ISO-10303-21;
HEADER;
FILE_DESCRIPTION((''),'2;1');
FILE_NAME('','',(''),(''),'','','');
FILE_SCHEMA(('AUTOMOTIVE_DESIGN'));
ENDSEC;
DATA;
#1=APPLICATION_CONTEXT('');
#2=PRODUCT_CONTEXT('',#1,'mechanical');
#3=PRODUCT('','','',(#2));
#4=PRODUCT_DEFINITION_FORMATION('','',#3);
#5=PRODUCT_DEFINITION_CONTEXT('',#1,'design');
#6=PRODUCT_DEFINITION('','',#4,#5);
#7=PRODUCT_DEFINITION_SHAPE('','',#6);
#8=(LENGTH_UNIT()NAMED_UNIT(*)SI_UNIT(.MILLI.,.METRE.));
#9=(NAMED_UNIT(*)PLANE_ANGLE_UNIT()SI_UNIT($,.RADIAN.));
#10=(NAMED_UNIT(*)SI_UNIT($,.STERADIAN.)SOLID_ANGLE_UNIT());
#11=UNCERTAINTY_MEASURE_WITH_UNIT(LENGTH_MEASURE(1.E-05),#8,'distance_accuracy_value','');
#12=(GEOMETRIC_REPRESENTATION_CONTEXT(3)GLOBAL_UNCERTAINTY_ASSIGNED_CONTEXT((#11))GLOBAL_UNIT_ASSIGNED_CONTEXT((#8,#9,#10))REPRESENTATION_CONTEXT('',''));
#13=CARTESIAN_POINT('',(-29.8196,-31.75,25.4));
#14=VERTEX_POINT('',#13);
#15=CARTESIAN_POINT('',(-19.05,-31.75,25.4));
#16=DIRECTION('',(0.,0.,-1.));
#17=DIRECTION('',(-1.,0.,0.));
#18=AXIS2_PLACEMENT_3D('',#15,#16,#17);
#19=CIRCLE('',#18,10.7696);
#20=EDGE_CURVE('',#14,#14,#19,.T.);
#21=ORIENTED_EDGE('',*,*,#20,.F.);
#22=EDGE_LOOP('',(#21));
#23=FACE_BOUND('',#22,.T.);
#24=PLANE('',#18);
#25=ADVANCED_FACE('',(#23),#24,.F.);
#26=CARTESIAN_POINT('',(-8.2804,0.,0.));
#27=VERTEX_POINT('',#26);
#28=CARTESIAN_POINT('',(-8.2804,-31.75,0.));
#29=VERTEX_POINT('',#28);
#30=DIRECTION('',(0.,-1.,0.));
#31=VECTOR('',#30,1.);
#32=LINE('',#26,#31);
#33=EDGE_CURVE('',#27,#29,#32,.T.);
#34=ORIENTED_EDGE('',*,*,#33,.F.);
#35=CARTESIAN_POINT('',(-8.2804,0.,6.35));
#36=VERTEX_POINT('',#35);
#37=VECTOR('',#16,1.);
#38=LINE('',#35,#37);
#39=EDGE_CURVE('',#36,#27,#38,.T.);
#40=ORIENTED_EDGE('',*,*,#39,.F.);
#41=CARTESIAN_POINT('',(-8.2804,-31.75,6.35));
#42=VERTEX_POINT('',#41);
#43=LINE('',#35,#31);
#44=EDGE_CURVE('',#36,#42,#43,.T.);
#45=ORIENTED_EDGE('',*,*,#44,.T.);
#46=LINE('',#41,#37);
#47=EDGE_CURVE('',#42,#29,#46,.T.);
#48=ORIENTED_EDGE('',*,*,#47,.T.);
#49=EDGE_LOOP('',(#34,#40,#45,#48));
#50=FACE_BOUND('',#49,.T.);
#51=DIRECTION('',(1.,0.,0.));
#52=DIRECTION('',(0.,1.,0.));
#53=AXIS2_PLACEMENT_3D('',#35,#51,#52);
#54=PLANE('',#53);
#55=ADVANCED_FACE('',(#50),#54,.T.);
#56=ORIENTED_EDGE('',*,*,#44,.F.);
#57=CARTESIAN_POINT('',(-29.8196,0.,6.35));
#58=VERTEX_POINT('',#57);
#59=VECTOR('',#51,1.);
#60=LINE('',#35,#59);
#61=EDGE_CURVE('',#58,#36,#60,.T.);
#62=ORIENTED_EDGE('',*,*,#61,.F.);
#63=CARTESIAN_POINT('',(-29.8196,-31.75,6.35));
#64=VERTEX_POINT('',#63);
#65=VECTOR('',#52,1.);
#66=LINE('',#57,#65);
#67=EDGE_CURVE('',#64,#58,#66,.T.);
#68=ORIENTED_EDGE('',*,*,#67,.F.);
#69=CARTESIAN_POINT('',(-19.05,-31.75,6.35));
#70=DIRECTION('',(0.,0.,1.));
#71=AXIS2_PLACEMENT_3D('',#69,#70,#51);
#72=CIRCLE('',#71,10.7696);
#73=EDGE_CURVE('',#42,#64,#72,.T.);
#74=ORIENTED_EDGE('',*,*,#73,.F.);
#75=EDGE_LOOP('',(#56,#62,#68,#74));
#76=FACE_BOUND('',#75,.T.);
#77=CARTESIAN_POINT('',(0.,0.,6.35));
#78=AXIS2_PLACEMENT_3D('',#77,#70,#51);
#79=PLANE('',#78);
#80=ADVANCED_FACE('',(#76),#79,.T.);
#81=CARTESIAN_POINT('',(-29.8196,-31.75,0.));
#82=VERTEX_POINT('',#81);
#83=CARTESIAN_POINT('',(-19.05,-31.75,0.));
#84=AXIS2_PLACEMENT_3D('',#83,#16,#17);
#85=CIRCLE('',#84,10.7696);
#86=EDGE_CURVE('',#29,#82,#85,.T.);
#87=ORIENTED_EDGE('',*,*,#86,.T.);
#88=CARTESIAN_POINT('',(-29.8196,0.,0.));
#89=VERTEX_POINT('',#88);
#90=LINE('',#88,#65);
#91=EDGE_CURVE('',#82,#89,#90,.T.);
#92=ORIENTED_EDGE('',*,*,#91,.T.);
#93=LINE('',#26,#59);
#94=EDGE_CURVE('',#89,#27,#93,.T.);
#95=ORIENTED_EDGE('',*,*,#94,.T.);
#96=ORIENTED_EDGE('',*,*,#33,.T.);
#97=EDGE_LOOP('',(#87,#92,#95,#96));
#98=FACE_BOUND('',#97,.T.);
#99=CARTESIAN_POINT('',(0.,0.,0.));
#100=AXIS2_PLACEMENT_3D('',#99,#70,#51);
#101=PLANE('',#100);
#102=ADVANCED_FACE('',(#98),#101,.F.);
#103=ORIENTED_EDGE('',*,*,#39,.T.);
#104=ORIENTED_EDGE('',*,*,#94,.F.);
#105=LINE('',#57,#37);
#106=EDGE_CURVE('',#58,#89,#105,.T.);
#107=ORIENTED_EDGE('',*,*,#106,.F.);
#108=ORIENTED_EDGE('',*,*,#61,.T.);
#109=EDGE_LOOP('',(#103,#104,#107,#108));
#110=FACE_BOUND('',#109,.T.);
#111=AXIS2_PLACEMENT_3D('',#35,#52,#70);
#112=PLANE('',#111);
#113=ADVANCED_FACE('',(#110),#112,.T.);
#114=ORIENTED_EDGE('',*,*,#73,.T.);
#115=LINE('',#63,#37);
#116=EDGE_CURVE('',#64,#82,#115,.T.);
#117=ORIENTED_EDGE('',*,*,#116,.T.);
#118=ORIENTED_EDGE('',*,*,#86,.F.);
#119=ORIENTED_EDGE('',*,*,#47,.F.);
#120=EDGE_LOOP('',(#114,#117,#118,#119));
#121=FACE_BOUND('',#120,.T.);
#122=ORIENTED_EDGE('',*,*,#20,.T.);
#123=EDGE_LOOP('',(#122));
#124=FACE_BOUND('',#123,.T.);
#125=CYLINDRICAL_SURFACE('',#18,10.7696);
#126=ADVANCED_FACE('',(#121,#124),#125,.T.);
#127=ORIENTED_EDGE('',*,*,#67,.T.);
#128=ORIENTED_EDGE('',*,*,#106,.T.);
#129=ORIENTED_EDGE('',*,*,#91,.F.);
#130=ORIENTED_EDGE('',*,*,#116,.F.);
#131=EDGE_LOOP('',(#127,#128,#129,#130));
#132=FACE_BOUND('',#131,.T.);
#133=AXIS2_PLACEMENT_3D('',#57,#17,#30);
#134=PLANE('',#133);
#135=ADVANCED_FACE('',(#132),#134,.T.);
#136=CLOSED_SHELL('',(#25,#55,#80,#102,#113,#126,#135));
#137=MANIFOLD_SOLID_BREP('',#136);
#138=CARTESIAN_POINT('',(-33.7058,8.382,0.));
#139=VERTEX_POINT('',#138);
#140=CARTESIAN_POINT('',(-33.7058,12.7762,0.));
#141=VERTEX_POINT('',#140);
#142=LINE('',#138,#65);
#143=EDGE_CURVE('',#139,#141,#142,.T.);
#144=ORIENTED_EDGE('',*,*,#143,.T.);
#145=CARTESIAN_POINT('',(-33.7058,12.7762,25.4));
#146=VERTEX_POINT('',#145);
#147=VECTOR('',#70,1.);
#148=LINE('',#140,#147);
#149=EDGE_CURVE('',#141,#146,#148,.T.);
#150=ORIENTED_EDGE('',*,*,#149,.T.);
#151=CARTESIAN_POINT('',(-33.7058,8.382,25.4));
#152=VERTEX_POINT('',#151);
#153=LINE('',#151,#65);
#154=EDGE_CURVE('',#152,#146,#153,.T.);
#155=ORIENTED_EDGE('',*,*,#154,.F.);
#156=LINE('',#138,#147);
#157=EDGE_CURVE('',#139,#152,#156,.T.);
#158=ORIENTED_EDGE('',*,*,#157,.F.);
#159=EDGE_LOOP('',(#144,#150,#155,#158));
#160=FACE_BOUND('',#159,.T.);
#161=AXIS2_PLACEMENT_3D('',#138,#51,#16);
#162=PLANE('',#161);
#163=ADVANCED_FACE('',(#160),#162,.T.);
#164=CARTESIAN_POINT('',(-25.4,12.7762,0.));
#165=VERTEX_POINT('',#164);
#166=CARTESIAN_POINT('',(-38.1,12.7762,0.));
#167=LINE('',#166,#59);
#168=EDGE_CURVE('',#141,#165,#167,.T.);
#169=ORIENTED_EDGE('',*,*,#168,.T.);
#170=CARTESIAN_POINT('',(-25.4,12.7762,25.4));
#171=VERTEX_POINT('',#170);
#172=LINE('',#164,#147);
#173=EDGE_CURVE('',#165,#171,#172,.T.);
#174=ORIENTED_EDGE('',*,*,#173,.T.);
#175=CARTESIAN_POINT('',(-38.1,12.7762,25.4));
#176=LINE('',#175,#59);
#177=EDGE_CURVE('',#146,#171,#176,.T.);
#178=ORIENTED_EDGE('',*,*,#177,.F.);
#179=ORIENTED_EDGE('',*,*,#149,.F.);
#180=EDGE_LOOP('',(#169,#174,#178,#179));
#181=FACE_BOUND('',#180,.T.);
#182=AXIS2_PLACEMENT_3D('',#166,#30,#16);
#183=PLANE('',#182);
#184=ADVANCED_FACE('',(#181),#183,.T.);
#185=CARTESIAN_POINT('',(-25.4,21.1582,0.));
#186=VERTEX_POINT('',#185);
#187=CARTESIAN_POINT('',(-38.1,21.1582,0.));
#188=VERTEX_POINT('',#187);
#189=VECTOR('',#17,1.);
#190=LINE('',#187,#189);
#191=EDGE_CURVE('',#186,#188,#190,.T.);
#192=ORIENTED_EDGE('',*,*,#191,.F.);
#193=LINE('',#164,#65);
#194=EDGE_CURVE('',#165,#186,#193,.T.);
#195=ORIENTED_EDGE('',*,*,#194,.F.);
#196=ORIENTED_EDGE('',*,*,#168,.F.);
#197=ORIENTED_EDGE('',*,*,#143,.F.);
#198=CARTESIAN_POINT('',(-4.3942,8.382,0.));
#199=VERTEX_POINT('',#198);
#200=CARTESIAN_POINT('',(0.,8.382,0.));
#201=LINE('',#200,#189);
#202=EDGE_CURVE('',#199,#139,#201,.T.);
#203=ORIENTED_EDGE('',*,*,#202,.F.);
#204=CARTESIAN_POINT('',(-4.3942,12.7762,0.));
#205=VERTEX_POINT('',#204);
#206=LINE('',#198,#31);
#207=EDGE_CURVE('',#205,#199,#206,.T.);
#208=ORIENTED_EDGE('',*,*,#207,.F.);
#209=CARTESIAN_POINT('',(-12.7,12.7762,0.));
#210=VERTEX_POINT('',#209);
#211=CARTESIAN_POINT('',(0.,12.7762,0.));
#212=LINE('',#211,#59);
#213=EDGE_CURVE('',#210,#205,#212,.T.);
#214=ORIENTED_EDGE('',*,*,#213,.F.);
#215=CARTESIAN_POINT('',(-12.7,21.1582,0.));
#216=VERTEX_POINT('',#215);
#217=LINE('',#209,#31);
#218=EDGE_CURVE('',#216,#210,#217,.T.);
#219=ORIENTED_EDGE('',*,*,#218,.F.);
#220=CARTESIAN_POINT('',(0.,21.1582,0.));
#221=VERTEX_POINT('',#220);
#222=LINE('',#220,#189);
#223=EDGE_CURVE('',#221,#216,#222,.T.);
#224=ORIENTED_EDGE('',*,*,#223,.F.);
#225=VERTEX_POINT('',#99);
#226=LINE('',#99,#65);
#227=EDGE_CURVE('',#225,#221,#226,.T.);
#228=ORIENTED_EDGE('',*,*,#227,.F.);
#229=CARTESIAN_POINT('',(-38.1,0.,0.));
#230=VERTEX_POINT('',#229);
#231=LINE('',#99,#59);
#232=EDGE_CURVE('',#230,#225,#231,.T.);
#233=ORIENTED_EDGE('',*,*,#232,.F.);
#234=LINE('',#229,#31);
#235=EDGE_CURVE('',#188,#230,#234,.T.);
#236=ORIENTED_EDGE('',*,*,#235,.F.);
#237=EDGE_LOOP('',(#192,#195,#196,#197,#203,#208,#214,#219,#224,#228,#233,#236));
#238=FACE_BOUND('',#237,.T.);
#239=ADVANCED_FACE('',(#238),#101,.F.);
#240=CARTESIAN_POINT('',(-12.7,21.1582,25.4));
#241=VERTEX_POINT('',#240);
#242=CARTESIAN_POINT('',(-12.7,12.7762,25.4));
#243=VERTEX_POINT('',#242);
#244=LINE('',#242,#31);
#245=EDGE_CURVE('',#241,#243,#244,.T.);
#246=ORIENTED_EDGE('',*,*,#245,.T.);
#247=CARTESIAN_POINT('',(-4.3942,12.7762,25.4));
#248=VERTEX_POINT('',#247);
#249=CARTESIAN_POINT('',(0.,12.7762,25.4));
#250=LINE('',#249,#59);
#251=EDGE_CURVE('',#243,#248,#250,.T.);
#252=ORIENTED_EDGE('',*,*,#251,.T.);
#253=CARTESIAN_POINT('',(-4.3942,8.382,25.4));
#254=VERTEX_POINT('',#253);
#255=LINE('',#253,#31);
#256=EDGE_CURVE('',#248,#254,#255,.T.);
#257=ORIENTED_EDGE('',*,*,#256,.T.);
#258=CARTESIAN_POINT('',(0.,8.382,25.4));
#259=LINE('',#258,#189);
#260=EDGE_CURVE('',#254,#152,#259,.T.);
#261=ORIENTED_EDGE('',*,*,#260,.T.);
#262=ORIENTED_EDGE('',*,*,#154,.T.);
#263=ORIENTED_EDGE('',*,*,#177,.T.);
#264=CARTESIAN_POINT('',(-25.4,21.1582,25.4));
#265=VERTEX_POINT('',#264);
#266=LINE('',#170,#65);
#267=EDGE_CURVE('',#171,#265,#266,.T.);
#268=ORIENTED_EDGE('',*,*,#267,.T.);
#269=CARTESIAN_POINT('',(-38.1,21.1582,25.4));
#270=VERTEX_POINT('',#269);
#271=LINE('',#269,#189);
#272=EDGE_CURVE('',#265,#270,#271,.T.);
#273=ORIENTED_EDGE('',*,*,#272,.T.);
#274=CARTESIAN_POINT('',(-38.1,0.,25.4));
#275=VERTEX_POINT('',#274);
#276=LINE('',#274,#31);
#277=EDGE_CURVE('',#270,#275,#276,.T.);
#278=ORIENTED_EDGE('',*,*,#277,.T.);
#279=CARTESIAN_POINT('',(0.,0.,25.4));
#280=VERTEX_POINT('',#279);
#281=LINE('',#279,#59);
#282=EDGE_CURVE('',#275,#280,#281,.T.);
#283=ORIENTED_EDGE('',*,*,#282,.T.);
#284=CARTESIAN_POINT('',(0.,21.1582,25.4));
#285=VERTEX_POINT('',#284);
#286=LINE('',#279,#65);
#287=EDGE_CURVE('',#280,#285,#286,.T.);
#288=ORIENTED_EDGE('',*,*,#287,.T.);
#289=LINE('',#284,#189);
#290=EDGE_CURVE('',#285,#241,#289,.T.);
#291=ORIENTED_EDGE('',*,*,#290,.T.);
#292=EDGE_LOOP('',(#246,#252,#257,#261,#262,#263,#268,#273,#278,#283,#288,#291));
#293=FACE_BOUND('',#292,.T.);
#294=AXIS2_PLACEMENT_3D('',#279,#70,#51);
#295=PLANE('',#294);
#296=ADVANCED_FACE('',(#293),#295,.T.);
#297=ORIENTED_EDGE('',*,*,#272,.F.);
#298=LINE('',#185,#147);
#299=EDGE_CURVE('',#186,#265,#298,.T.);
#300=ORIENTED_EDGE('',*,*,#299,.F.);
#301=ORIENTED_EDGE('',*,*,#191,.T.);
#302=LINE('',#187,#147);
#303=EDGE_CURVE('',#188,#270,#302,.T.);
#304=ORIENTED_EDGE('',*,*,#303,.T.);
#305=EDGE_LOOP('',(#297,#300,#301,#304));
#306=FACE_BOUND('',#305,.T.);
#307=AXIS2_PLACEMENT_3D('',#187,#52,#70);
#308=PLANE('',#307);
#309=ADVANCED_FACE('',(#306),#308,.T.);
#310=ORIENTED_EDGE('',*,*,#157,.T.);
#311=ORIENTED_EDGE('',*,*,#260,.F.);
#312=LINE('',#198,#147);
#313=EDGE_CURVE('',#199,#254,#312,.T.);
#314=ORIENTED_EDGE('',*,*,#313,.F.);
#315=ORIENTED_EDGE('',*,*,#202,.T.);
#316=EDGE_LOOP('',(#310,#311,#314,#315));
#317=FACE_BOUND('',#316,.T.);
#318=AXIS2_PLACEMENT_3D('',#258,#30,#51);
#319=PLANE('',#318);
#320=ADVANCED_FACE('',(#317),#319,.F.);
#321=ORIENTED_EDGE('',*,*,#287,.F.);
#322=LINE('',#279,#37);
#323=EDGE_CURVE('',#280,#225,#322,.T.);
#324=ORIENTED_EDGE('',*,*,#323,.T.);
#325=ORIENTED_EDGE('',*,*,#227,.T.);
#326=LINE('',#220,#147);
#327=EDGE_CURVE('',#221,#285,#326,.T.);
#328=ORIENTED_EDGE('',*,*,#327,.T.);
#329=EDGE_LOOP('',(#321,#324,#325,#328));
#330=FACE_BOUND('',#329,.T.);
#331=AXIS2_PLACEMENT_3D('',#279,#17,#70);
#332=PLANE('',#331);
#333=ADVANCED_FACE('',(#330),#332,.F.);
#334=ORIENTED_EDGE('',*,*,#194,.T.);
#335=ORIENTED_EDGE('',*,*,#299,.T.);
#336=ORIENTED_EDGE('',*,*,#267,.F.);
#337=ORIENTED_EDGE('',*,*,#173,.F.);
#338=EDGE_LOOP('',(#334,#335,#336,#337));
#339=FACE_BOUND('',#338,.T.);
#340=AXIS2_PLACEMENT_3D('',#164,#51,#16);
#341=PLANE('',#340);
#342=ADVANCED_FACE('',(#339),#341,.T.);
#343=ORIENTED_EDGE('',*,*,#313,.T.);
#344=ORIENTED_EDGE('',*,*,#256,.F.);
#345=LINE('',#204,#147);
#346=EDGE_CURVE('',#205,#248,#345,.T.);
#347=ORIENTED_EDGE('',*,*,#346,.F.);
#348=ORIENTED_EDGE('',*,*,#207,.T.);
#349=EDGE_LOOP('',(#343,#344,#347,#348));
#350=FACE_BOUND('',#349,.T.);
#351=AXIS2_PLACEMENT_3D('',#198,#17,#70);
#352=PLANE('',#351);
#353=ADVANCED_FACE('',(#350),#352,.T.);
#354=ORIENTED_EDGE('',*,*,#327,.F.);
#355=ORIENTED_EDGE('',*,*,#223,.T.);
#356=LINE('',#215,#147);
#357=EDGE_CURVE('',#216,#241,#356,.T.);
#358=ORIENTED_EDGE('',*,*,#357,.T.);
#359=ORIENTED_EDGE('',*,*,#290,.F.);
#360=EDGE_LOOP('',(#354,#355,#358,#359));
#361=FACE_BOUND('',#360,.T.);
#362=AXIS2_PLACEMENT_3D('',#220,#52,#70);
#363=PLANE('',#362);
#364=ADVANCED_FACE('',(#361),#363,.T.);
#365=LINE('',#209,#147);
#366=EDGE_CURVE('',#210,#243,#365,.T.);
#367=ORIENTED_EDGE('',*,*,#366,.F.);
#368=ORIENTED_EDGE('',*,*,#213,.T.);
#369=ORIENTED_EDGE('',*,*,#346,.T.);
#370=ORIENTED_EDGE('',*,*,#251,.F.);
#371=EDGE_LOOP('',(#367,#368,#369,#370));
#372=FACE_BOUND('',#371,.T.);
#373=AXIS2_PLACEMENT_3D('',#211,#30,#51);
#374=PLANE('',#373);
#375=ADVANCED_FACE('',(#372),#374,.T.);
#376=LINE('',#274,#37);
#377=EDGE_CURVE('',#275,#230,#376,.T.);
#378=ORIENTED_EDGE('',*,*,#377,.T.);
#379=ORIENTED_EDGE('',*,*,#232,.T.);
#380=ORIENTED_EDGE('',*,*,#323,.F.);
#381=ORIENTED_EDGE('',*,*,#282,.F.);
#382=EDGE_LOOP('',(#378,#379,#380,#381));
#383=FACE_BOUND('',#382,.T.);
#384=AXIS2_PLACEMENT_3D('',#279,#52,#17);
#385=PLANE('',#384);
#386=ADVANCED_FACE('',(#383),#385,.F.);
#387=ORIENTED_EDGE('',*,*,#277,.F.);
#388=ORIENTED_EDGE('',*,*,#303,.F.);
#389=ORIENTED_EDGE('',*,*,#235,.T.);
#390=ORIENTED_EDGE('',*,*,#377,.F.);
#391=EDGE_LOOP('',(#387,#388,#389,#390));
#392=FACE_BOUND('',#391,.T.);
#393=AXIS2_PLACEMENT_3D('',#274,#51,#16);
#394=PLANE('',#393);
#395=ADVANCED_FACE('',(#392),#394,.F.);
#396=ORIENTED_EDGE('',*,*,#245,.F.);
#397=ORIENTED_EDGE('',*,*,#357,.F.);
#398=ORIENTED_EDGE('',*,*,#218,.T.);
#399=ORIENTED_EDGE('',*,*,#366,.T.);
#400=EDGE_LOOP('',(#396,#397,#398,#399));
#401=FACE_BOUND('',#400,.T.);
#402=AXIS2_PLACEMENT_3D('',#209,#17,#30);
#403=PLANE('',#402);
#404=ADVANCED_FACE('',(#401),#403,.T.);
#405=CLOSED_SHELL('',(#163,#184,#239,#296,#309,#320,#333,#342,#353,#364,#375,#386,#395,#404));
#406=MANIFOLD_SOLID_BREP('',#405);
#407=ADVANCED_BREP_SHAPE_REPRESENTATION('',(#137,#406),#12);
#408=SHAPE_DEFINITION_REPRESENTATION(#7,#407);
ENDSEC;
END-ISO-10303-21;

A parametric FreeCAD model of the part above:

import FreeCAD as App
import Part
import Sketcher

V = App.Vector
Q = App.Units.Quantity


def add_polygon(sketch, points):
    """Adds a closed chain of lines whose ends are joined by coincident constraints."""
    first, n = sketch.GeometryCount, len(points)
    for a, b in zip(points, points[1:] + points[:1]):
        sketch.addGeometry(Part.LineSegment(App.Vector(*a, 0), App.Vector(*b, 0)), False)
    for i in range(n):
        sketch.addConstraint(Sketcher.Constraint("Coincident", first + i, 2, first + (i + 1) % n, 1))

doc = App.newDocument("Part")
params = doc.addObject("Spreadsheet::Sheet", "Params")
for row, (alias, value) in enumerate([
    ("sketch1_width", "1.5 in"),
    ("sketch1_height", "0.33 in"),
    ("pad1_length", "1 in"),
    ("sketch2_width", "0.173 in"),
    ("pad2_length", "1 in"),
    ("sketch3_width", "0.5 in"),
    ("sketch3_height", "0.33 in"),
    ("pad3_length", "1 in"),
    ("sketch4_height", "1.25 in"),
    ("sketch4_width", "0.848 in"),
    ("pad4_length", "0.25 in"),
    ("sketch5_diameter", "0.848 in"),
    ("pad5_length", "1 in"),
], start=1):
    params.set(f"A{row}", alias)
    params.set(f"B{row}", "=" + value)
    params.setAlias(f"B{row}", alias)

body = doc.addObject("PartDesign::Body", "Body")

# Sketch on XY plane
sketch1 = body.newObject("Sketcher::SketchObject", "Sketch")
sketch1.AttachmentSupport = (doc.getObject("XY_Plane"), [""])
sketch1.MapMode = "FlatFace"
add_polygon(sketch1, [(-38, 8), (-38, 0), (0, 0), (0, 8)])  # lines 0-3
sketch1.addConstraint(Sketcher.Constraint("Vertical", 0))
sketch1.addConstraint(Sketcher.Constraint("Horizontal", 1))
sketch1.addConstraint(Sketcher.Constraint("Vertical", 2))
sketch1.addConstraint(Sketcher.Constraint("Horizontal", 3))
sketch1.addConstraint(Sketcher.Constraint("Coincident", 1, 2, -1, 1))
sketch1.addConstraint(Sketcher.Constraint("DistanceX", 1, 1, 1, 2, Q("1.5 in")))
sketch1.addConstraint(Sketcher.Constraint("DistanceY", 0, 2, 0, 1, Q("0.33 in")))
sketch1.setExpression("Constraints[9]", "Params.sketch1_width")
sketch1.setExpression("Constraints[10]", "Params.sketch1_height")
pad1 = body.newObject("PartDesign::Pad", "Pad")
pad1.Profile = sketch1
pad1.setExpression("Length", "Params.pad1_length")

# Sketch on XY plane
sketch2 = body.newObject("Sketcher::SketchObject", "Sketch001")
sketch2.AttachmentSupport = (doc.getObject("XY_Plane"), [""])
sketch2.MapMode = "FlatFace"
sketch2.AttachmentOffset = App.Placement(V(0, 0, 1 * 25.4), App.Rotation())
add_polygon(sketch2, [(-38.1, 12.8), (-38.1, 8.4), (-33.7, 8.4), (-33.7, 12.8)])  # lines 0-3
add_polygon(sketch2, [(-4.4, 12.8), (-4.4, 8.4), (0, 8.4), (0, 12.8)])  # lines 4-7
sketch2.addConstraint(Sketcher.Constraint("Vertical", 0))
sketch2.addConstraint(Sketcher.Constraint("Horizontal", 1))
sketch2.addConstraint(Sketcher.Constraint("Vertical", 2))
sketch2.addConstraint(Sketcher.Constraint("Horizontal", 3))
sketch2.addConstraint(Sketcher.Constraint("Vertical", 4))
sketch2.addConstraint(Sketcher.Constraint("Horizontal", 5))
sketch2.addConstraint(Sketcher.Constraint("Vertical", 6))
sketch2.addConstraint(Sketcher.Constraint("Horizontal", 7))
sketch2.addConstraint(Sketcher.Constraint("PointOnObject", 5, 2, -2))
sketch2.addConstraint(Sketcher.Constraint("Horizontal", 1, 2, 4, 2))
sketch2.addConstraint(Sketcher.Constraint("Horizontal", 3, 2, 6, 2))
sketch2.addConstraint(Sketcher.Constraint("Equal", 3, 5))
sketch2.addConstraint(Sketcher.Constraint("Equal", 7, 0))
sketch2.addConstraint(Sketcher.Constraint("DistanceX", 0, 2, -1, 1, Q("1.5 in")))
sketch2.addConstraint(Sketcher.Constraint("DistanceX", 1, 1, 1, 2, Q("0.173 in")))
sketch2.addConstraint(Sketcher.Constraint("DistanceY", -1, 1, 0, 2, Q("0.33 in")))
sketch2.setExpression("Constraints[22]", "Params.sketch2_width")
pad2 = body.newObject("PartDesign::Pad", "Pad001")
pad2.Profile = sketch2
pad2.setExpression("Length", "Params.pad2_length")
pad2.Reversed = True

# Sketch on XY plane
sketch3 = body.newObject("Sketcher::SketchObject", "Sketch002")
sketch3.AttachmentSupport = (doc.getObject("XY_Plane"), [""])
sketch3.MapMode = "FlatFace"
sketch3.AttachmentOffset = App.Placement(V(0, 0, 1 * 25.4), App.Rotation())
add_polygon(sketch3, [(-38, 21), (-38, 13), (-25, 13), (-25, 21)])  # lines 0-3
add_polygon(sketch3, [(-13, 21), (-13, 13), (0, 13), (0, 21)])  # lines 4-7
sketch3.addConstraint(Sketcher.Constraint("Vertical", 0))
sketch3.addConstraint(Sketcher.Constraint("Horizontal", 1))
sketch3.addConstraint(Sketcher.Constraint("Vertical", 2))
sketch3.addConstraint(Sketcher.Constraint("Horizontal", 3))
sketch3.addConstraint(Sketcher.Constraint("Vertical", 4))
sketch3.addConstraint(Sketcher.Constraint("Horizontal", 5))
sketch3.addConstraint(Sketcher.Constraint("Vertical", 6))
sketch3.addConstraint(Sketcher.Constraint("Horizontal", 7))
sketch3.addConstraint(Sketcher.Constraint("PointOnObject", 5, 2, -2))
sketch3.addConstraint(Sketcher.Constraint("Horizontal", 1, 2, 4, 2))
sketch3.addConstraint(Sketcher.Constraint("Horizontal", 3, 2, 6, 2))
sketch3.addConstraint(Sketcher.Constraint("Equal", 3, 5))
sketch3.addConstraint(Sketcher.Constraint("DistanceX", 1, 1, 1, 2, Q("0.5 in")))
sketch3.addConstraint(Sketcher.Constraint("DistanceX", 1, 2, -1, 1, Q("1 in")))
sketch3.addConstraint(Sketcher.Constraint("DistanceY", 0, 2, 0, 1, Q("0.33 in")))
sketch3.addConstraint(Sketcher.Constraint("DistanceY", -1, 1, 0, 2, Q("0.503 in")))
sketch3.setExpression("Constraints[20]", "Params.sketch3_width")
sketch3.setExpression("Constraints[22]", "Params.sketch3_height")
pad3 = body.newObject("PartDesign::Pad", "Pad002")
pad3.Profile = sketch3
pad3.setExpression("Length", "Params.pad3_length")
pad3.Reversed = True
body2 = doc.addObject("PartDesign::Body", "Body001")

# Sketch on XY plane
sketch4 = body2.newObject("Sketcher::SketchObject", "Sketch003")
sketch4.AttachmentSupport = (doc.getObject("XY_Plane001"), [""])
sketch4.MapMode = "FlatFace"
add_polygon(sketch4, [(-8, 0), (-8, -32), (-30, -32), (-30, 0)])  # lines 0-3
sketch4.addConstraint(Sketcher.Constraint("Vertical", 0))
sketch4.addConstraint(Sketcher.Constraint("Horizontal", 1))
sketch4.addConstraint(Sketcher.Constraint("Vertical", 2))
sketch4.addConstraint(Sketcher.Constraint("Horizontal", 3))
sketch4.addConstraint(Sketcher.Constraint("PointOnObject", 2, 2, -1))
sketch4.addConstraint(Sketcher.Constraint("DistanceY", 0, 2, 0, 1, Q("1.25 in")))
sketch4.addConstraint(Sketcher.Constraint("DistanceX", 1, 2, 1, 1, Q("0.848 in")))
sketch4.addConstraint(Sketcher.Constraint("DistanceX", 0, 2, -1, 1, Q("0.326 in")))
sketch4.setExpression("Constraints[9]", "Params.sketch4_height")
sketch4.setExpression("Constraints[10]", "Params.sketch4_width")
pad4 = body2.newObject("PartDesign::Pad", "Pad003")
pad4.Profile = sketch4
pad4.setExpression("Length", "Params.pad4_length")

# Sketch on XY plane
sketch5 = body2.newObject("Sketcher::SketchObject", "Sketch004")
sketch5.AttachmentSupport = (doc.getObject("XY_Plane001"), [""])
sketch5.MapMode = "FlatFace"
sketch5.addGeometry(Part.Circle(V(-19, -32, 0), V(0, 0, 1), 11), False)
sketch5.addConstraint(Sketcher.Constraint("Diameter", 0, Q("0.848 in")))
sketch5.addConstraint(Sketcher.Constraint("DistanceX", 0, 3, -1, 1, Q("0.75 in")))
sketch5.addConstraint(Sketcher.Constraint("DistanceY", 0, 3, -1, 1, Q("1.25 in")))
sketch5.setExpression("Constraints[0]", "Params.sketch5_diameter")
pad5 = body2.newObject("PartDesign::Pad", "Pad004")
pad5.Profile = sketch5
pad5.setExpression("Length", "Params.pad5_length")

doc.recompute()
